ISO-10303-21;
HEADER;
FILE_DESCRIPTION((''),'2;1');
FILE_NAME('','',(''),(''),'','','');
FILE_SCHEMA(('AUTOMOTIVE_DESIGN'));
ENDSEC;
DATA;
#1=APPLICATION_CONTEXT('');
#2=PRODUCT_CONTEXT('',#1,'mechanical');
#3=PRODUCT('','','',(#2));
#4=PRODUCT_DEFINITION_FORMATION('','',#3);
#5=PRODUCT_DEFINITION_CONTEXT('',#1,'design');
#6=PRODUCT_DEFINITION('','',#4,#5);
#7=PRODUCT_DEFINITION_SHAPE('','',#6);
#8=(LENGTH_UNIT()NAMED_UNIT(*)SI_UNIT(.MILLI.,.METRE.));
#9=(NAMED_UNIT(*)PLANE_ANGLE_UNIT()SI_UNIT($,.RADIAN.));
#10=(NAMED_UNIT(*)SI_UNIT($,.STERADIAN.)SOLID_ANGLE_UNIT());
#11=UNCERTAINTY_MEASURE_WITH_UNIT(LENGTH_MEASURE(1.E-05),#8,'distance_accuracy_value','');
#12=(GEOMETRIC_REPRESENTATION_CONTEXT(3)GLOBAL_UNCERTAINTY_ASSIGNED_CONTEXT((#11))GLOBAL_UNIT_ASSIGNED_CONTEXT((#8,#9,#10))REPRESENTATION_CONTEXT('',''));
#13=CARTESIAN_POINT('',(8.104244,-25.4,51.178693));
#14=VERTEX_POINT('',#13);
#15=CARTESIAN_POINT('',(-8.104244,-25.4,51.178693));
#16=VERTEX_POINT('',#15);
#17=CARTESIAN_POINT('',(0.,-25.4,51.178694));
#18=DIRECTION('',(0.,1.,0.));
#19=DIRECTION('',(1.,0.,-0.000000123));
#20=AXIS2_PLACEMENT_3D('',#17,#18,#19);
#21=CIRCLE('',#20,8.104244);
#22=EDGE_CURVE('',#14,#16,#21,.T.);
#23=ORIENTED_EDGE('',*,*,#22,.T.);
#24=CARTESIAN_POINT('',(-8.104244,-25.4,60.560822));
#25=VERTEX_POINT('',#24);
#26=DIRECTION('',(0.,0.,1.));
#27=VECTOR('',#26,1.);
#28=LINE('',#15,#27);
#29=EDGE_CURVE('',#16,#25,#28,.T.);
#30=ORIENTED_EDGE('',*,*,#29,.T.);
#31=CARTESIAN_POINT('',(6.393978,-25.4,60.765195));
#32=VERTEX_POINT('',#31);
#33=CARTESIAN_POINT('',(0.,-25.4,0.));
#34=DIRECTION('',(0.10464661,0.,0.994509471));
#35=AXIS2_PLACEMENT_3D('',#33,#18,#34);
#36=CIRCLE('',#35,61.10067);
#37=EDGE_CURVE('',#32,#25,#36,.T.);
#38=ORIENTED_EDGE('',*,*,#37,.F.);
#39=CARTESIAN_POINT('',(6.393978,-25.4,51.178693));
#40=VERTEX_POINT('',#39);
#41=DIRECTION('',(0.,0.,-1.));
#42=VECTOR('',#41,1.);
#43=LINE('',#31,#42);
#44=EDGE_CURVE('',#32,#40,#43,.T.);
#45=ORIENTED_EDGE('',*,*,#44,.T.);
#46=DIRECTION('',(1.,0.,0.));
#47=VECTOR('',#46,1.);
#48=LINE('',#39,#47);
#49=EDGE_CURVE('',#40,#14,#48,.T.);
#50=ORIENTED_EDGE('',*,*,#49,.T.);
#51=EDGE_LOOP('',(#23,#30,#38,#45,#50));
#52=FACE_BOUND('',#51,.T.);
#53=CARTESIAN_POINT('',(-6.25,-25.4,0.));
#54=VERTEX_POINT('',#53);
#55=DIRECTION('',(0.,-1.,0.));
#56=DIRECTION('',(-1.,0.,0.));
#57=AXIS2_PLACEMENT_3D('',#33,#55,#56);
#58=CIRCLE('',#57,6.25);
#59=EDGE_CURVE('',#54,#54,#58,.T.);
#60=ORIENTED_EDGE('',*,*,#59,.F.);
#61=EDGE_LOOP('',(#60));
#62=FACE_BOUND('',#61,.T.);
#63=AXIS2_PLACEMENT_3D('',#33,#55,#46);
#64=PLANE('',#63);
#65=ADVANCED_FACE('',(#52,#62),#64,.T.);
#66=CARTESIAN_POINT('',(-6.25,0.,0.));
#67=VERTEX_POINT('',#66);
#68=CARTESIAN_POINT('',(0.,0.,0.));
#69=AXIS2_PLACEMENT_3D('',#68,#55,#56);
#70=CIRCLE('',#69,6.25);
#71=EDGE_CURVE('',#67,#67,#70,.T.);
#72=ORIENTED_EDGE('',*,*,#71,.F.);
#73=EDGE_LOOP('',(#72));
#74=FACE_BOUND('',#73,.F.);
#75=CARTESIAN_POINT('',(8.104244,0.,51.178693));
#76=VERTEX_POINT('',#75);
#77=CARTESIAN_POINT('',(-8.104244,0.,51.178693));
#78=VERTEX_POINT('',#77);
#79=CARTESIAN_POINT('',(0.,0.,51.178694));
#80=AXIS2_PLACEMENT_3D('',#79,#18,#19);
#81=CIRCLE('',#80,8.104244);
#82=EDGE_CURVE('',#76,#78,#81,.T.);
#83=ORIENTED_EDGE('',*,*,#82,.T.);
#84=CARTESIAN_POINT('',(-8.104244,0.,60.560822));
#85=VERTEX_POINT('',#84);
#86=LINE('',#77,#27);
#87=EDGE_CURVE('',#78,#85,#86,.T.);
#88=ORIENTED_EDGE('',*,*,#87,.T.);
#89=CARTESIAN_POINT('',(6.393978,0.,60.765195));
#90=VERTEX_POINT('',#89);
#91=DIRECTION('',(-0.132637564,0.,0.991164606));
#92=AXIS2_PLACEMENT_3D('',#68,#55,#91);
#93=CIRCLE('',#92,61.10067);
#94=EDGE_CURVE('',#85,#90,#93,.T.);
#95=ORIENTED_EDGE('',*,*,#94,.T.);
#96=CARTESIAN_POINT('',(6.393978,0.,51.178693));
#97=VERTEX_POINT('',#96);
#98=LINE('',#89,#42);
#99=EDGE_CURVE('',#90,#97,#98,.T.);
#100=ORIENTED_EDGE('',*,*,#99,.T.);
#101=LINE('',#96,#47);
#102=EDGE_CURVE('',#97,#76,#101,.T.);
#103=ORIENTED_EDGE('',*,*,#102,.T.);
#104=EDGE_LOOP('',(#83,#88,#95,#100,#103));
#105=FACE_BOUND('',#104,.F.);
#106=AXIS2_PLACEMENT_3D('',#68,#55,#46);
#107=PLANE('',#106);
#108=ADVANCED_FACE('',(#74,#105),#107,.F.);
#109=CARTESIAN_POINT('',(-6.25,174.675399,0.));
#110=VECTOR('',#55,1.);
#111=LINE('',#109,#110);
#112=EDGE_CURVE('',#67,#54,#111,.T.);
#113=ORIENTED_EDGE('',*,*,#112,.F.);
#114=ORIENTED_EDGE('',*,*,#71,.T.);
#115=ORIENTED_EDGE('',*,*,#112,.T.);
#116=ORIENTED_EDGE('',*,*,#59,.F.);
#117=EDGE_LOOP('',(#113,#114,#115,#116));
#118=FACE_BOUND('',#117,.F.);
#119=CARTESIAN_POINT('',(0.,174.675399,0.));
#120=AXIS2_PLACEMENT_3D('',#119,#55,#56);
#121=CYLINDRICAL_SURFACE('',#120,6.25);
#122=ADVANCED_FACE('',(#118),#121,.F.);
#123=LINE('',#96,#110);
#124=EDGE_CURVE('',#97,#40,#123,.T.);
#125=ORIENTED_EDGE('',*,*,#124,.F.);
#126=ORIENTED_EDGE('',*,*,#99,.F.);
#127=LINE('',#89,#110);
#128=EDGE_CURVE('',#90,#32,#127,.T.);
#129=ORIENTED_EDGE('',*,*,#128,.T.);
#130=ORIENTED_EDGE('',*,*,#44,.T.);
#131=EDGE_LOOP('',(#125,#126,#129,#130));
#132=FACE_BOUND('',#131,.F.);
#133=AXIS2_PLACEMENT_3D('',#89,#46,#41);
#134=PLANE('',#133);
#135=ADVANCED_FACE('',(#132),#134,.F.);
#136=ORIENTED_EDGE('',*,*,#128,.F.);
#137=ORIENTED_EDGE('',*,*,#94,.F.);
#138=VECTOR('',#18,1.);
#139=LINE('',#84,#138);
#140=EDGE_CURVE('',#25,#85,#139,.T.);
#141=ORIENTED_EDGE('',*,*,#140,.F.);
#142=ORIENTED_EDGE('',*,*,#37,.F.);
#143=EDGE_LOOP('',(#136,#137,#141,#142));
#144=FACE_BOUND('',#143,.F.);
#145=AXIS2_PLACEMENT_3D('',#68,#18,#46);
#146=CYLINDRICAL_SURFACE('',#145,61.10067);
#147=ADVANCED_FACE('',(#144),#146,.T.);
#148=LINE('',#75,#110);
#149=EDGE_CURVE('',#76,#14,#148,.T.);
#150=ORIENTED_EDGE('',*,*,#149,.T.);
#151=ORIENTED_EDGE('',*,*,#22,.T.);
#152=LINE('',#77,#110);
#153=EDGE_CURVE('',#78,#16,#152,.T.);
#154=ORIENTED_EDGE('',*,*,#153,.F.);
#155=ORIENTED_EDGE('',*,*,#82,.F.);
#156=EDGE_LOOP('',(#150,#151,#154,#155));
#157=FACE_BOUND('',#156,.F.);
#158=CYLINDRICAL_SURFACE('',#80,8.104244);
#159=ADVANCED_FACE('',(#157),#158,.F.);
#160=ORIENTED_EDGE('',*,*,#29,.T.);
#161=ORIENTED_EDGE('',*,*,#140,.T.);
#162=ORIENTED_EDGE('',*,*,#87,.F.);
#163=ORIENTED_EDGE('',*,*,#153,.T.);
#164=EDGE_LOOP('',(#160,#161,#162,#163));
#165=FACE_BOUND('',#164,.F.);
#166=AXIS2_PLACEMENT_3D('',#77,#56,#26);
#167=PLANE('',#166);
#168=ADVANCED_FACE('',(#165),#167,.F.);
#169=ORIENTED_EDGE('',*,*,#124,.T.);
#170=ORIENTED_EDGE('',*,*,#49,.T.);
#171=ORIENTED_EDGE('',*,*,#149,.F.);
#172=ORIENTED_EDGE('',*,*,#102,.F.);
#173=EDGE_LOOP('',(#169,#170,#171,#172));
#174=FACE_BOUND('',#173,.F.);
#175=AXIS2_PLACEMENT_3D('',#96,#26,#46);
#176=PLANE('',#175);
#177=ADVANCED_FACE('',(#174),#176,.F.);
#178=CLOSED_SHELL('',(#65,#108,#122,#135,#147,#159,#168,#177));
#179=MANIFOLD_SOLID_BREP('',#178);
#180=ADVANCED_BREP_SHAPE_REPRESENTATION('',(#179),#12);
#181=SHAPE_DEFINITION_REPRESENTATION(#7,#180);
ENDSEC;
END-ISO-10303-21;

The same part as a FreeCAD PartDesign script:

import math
import FreeCAD as App
import Part
import Sketcher

V = App.Vector

doc = App.newDocument("Part")
body = doc.addObject("PartDesign::Body", "Body")

# Sketch on XZ plane
sketch1 = body.newObject("Sketcher::SketchObject", "Sketch")
sketch1.AttachmentSupport = (doc.getObject("XZ_Plane"), [""])
sketch1.MapMode = "FlatFace"
sketch1.addGeometry(Part.Circle(V(0, 0, 0), V(0, 0, 1), 61), False)
sketch1.addConstraint(Sketcher.Constraint("Coincident", 0, 3, -1, 1))
sketch1.addConstraint(Sketcher.Constraint("Diameter", 0, 122.20134))
pad1 = body.newObject("PartDesign::Pad", "Pad")
pad1.Profile = sketch1
pad1.Length = 25.4

# Sketch on XZ plane
sketch2 = body.newObject("Sketcher::SketchObject", "Sketch001")
sketch2.AttachmentSupport = (doc.getObject("XZ_Plane"), [""])
sketch2.MapMode = "FlatFace"
sketch2.addGeometry(Part.Circle(V(0, 0, 0), V(0, 0, 1), 6), False)
sketch2.addConstraint(Sketcher.Constraint("Coincident", 0, 3, -1, 1))
sketch2.addConstraint(Sketcher.Constraint("Diameter", 0, 12.5))
doc.recompute()
hole = body.newObject("PartDesign::Hole", "Hole")
hole.Profile = sketch2
hole.ThreadType = "None"
hole.Diameter = 12.5
hole.DepthType = "ThroughAll"
hole.Reversed = True

# Sketch on XZ plane
sketch3 = body.newObject("Sketcher::SketchObject", "Sketch002")
sketch3.AttachmentSupport = (doc.getObject("XZ_Plane"), [""])
sketch3.MapMode = "FlatFace"
sketch3.addGeometry(Part.LineSegment(V(6.4, 51.2, 0), V(8.1, 51.2, 0)), False)
sketch3.addGeometry(Part.ArcOfCircle(Part.Circle(V(0, 51.2, 0), V(0, 0, 1), 8.1), math.radians(-180), math.radians(0)), False)
sketch3.addGeometry(Part.LineSegment(V(-8.1, 51.2, 0), V(-8.1, 60.8, 0)), False)
sketch3.addGeometry(Part.ArcOfCircle(Part.Circle(V(-0.9, 60.8, 0), V(0, 0, 1), 7.2), math.radians(0), math.radians(180)), False)
sketch3.addGeometry(Part.LineSegment(V(6.4, 60.8, 0), V(6.4, 51.2, 0)), False)
sketch3.addConstraint(Sketcher.Constraint("Coincident", 0, 2, 1, 2))
sketch3.addConstraint(Sketcher.Constraint("Tangent", 1, 1, 2, 1))
sketch3.addConstraint(Sketcher.Constraint("Tangent", 2, 2, 3, 2))
sketch3.addConstraint(Sketcher.Constraint("Tangent", 3, 1, 4, 1))
sketch3.addConstraint(Sketcher.Constraint("Coincident", 4, 2, 0, 1))
sketch3.addConstraint(Sketcher.Constraint("Horizontal", 0))
sketch3.addConstraint(Sketcher.Constraint("Vertical", 2))
sketch3.addConstraint(Sketcher.Constraint("Vertical", 4))
sketch3.addConstraint(Sketcher.Constraint("Symmetric", 0, 2, 1, 1, -2))
sketch3.addConstraint(Sketcher.Constraint("Radius", 3, 7.249111))
sketch3.addConstraint(Sketcher.Constraint("DistanceY", 2, 1, 2, 2, 9.586502))
sketch3.addConstraint(Sketcher.Constraint("Radius", 1, 8.104244))
sketch3.addConstraint(Sketcher.Constraint("DistanceY", -1, 1, 1, 3, 51.178694))
pocket1 = body.newObject("PartDesign::Pocket", "Pocket")
pocket1.Profile = sketch3
pocket1.Length = 25.4
pocket1.Reversed = True

doc.recompute()
